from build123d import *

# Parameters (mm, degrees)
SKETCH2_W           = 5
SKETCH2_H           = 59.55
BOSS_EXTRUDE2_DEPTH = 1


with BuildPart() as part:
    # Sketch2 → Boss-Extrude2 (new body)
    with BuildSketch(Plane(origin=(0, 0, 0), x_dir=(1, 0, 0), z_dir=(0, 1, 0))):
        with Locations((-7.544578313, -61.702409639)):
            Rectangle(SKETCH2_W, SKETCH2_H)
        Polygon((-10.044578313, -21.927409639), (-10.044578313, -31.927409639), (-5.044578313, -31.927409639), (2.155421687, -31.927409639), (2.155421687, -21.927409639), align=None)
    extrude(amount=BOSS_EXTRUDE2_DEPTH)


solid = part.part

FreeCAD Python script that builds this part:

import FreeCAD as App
import Part
import Sketcher

V = App.Vector


def add_polygon(sketch, points):
    """Adds a closed chain of lines whose ends are joined by coincident constraints."""
    first, n = sketch.GeometryCount, len(points)
    for a, b in zip(points, points[1:] + points[:1]):
        sketch.addGeometry(Part.LineSegment(App.Vector(*a, 0), App.Vector(*b, 0)), False)
    for i in range(n):
        sketch.addConstraint(Sketcher.Constraint("Coincident", first + i, 2, first + (i + 1) % n, 1))

doc = App.newDocument("Part")
params = doc.addObject("Spreadsheet::Sheet", "Params")
for row, (alias, value) in enumerate([
    ("sketch1_width", "5 mm"),
    ("sketch1_height", "10 mm"),
    ("sketch1_width2", "7.2 mm"),
    ("sketch1_height2", "59.55 mm"),
    ("pad1_length", "1 mm"),
], start=1):
    params.set(f"A{row}", alias)
    params.set(f"B{row}", "=" + value)
    params.setAlias(f"B{row}", alias)

body = doc.addObject("PartDesign::Body", "Body")

sketch1 = body.newObject("Sketcher::SketchObject", "Sketch")
sketch1.AttachmentSupport = (doc.getObject("XZ_Plane"), [""])
sketch1.MapMode = "FlatFace"
add_polygon(sketch1, [(-10, 91), (-5, 91), (-5, 32), (2, 32), (2, 22), (-10, 22)])
sketch1.addConstraint([
    Sketcher.Constraint("Horizontal", 0),
    Sketcher.Constraint("Vertical", 1),
    Sketcher.Constraint("Horizontal", 2),
    Sketcher.Constraint("Vertical", 3),
    Sketcher.Constraint("Horizontal", 4),
    Sketcher.Constraint("Vertical", 5),
    Sketcher.Constraint("DistanceX", 0, 1, 0, 2, 5.0),
    Sketcher.Constraint("DistanceY", 3, 2, 3, 1, 10.0),
    Sketcher.Constraint("DistanceX", 2, 1, 2, 2, 7.2),
    Sketcher.Constraint("DistanceY", 1, 2, 1, 1, 59.55),
    Sketcher.Constraint("DistanceX", 0, 2, -1, 1, 5.044578),
    Sketcher.Constraint("DistanceY", -1, 1, 0, 2, 91.47741),
])
sketch1.setExpression("Constraints[12]", "Params.sketch1_width")
sketch1.setExpression("Constraints[13]", "Params.sketch1_height")
sketch1.setExpression("Constraints[14]", "Params.sketch1_width2")
sketch1.setExpression("Constraints[15]", "Params.sketch1_height2")
pad1 = body.newObject("PartDesign::Pad", "Pad")
pad1.Profile = sketch1
pad1.setExpression("Length", "Params.pad1_length")
pad1.Reversed = True

doc.recompute()
